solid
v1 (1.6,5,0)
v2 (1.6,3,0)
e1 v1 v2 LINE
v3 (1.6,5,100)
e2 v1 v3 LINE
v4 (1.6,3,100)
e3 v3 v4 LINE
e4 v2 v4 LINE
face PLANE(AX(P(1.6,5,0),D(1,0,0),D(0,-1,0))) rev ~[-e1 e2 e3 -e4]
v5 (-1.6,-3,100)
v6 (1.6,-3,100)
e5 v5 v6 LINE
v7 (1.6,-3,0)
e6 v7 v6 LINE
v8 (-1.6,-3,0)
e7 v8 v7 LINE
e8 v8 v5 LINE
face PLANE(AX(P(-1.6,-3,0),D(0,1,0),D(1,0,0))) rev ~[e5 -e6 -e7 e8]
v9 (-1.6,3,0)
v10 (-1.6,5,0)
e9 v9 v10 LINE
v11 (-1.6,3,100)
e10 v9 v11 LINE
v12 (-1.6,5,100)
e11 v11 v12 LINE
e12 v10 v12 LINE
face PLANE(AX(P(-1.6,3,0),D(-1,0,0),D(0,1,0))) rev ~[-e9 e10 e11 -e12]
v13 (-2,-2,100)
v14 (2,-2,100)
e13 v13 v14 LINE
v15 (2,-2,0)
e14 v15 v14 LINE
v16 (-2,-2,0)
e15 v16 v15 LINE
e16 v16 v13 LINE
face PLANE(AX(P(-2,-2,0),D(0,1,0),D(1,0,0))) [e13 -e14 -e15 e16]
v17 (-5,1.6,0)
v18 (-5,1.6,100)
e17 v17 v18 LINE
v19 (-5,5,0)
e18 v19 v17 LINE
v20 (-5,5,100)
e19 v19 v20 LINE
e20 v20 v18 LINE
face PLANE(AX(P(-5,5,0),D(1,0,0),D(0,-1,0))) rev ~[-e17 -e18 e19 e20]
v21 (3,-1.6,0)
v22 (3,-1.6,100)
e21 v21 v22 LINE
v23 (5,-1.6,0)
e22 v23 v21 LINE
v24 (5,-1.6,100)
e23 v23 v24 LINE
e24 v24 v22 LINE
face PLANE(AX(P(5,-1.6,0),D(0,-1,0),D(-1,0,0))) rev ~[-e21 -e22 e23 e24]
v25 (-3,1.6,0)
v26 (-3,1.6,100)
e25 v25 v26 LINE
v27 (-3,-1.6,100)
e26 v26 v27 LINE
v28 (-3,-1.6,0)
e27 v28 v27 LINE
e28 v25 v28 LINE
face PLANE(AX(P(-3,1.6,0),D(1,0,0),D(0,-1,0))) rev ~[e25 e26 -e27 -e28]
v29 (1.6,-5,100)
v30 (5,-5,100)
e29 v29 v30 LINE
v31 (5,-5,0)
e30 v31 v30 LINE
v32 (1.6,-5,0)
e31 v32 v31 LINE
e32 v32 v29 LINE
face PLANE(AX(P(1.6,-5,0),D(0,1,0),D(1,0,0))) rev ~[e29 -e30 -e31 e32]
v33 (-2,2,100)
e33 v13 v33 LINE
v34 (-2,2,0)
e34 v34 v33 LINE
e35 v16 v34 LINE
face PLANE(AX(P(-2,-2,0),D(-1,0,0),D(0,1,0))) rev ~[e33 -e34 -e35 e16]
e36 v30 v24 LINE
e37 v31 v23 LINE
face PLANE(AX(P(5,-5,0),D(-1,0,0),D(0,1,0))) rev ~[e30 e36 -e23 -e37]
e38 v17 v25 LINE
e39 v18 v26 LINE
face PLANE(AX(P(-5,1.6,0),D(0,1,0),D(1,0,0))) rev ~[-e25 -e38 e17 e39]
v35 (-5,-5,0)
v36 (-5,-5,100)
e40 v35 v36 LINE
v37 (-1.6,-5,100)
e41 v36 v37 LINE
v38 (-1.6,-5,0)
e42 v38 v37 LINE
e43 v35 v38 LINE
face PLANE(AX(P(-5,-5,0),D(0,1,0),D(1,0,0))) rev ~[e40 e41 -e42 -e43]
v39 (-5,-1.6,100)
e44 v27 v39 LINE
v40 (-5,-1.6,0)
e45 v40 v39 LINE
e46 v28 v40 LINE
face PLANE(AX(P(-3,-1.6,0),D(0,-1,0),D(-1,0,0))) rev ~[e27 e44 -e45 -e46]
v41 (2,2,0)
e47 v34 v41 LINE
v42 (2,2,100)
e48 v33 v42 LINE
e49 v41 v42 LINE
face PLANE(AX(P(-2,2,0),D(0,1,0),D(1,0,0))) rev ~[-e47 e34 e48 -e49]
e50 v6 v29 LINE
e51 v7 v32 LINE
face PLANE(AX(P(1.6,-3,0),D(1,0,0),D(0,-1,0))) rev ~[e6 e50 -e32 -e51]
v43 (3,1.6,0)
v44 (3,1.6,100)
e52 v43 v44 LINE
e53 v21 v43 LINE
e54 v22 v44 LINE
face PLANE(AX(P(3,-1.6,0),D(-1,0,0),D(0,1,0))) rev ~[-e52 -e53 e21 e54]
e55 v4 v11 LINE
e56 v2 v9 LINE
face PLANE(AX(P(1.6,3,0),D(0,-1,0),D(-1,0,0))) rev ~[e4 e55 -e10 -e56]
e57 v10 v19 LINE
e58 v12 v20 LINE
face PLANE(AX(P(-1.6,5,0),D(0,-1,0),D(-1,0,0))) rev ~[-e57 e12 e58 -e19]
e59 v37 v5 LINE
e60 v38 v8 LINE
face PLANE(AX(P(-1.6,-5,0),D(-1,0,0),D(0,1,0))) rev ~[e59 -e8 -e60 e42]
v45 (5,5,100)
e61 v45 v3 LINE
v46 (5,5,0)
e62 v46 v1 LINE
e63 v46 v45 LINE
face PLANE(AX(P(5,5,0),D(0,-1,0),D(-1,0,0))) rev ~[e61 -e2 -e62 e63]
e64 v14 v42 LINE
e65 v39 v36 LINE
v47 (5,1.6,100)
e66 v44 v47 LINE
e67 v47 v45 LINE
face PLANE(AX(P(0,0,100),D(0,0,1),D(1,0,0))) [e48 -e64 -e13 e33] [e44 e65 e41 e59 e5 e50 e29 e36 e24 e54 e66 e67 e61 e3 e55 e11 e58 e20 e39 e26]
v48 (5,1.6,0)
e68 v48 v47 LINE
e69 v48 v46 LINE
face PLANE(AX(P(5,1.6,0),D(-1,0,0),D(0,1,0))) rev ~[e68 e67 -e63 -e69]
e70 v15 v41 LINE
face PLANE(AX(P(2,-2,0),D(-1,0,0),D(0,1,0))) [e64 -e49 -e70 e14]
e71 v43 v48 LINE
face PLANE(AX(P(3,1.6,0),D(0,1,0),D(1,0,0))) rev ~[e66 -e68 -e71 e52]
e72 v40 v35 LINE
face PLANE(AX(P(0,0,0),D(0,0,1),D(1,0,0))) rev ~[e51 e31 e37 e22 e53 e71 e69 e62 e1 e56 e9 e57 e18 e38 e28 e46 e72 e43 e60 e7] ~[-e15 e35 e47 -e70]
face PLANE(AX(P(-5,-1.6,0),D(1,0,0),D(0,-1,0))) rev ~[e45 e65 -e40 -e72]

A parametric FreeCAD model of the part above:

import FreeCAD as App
import Part
import Sketcher

V = App.Vector


def add_polygon(sketch, points):
    """Adds a closed chain of lines whose ends are joined by coincident constraints."""
    first, n = sketch.GeometryCount, len(points)
    for a, b in zip(points, points[1:] + points[:1]):
        sketch.addGeometry(Part.LineSegment(App.Vector(*a, 0), App.Vector(*b, 0)), False)
    for i in range(n):
        sketch.addConstraint(Sketcher.Constraint("Coincident", first + i, 2, first + (i + 1) % n, 1))

doc = App.newDocument("Part")
body = doc.addObject("PartDesign::Body", "Body")

sketch1 = body.newObject("Sketcher::SketchObject", "Sketch")
sketch1.AttachmentSupport = (doc.getObject("XY_Plane"), [""])
sketch1.MapMode = "FlatFace"
add_polygon(sketch1, [(5, 1.6), (5, 5), (1.6, 5), (1.6, 3), (-1.6, 3), (-1.6, 5), (-5, 5), (-5, 1.6), (-3, 1.6), (-3, -1.6), (-5, -1.6), (-5, -5), (-1.6, -5), (-1.6, -3), (1.6, -3), (1.6, -5), (5, -5), (5, -1.6), (3, -1.6), (3, 1.6)])
add_polygon(sketch1, [(2, -2), (-2, -2), (-2, 2), (2, 2)])
sketch1.addConstraint([
    Sketcher.Constraint("Vertical", 0),
    Sketcher.Constraint("Horizontal", 1),
    Sketcher.Constraint("Vertical", 2),
    Sketcher.Constraint("Horizontal", 3),
    Sketcher.Constraint("Vertical", 4),
    Sketcher.Constraint("Horizontal", 5),
    Sketcher.Constraint("Vertical", 6),
    Sketcher.Constraint("Horizontal", 7),
    Sketcher.Constraint("Vertical", 8),
    Sketcher.Constraint("Horizontal", 9),
    Sketcher.Constraint("Vertical", 10),
    Sketcher.Constraint("Horizontal", 11),
    Sketcher.Constraint("Vertical", 12),
    Sketcher.Constraint("Horizontal", 13),
    Sketcher.Constraint("Vertical", 14),
    Sketcher.Constraint("Horizontal", 15),
    Sketcher.Constraint("Vertical", 16),
    Sketcher.Constraint("Horizontal", 17),
    Sketcher.Constraint("Vertical", 18),
    Sketcher.Constraint("Horizontal", 19),
    Sketcher.Constraint("Horizontal", 20),
    Sketcher.Constraint("Vertical", 21),
    Sketcher.Constraint("Horizontal", 22),
    Sketcher.Constraint("Vertical", 23),
    Sketcher.Constraint("Symmetric", 0, 2, 10, 2, -1, 1),
    Sketcher.Constraint("Symmetric", 2, 2, 12, 2, -1, 1),
    Sketcher.Constraint("Symmetric", 4, 2, 14, 2, -1, 1),
    Sketcher.Constraint("Symmetric", 6, 2, 16, 2, -1, 1),
    Sketcher.Constraint("Symmetric", 8, 2, 18, 2, -1, 1),
    Sketcher.Constraint("Symmetric", 20, 2, 22, 2, -1, 1),
    Sketcher.Constraint("Symmetric", 1, 2, 4, 2, -2),
    Sketcher.Constraint("Symmetric", 9, 2, 16, 2, -2),
    Sketcher.Constraint("Equal", 15, 0),
    Sketcher.Constraint("Equal", 19, 2),
    Sketcher.Constraint("Equal", 13, 8),
    Sketcher.Constraint("Equal", 22, 21),
    Sketcher.Constraint("DistanceX", 7, 1, 7, 2, 2.0),
    Sketcher.Constraint("DistanceX", 20, 2, 20, 1, 4.0),
    Sketcher.Constraint("DistanceX", 1, 2, 1, 1, 3.4),
    Sketcher.Constraint("DistanceX", 3, 2, 3, 1, 3.2),
])
pad1 = body.newObject("PartDesign::Pad", "Pad")
pad1.Profile = sketch1
pad1.Length = 100

doc.recompute()
